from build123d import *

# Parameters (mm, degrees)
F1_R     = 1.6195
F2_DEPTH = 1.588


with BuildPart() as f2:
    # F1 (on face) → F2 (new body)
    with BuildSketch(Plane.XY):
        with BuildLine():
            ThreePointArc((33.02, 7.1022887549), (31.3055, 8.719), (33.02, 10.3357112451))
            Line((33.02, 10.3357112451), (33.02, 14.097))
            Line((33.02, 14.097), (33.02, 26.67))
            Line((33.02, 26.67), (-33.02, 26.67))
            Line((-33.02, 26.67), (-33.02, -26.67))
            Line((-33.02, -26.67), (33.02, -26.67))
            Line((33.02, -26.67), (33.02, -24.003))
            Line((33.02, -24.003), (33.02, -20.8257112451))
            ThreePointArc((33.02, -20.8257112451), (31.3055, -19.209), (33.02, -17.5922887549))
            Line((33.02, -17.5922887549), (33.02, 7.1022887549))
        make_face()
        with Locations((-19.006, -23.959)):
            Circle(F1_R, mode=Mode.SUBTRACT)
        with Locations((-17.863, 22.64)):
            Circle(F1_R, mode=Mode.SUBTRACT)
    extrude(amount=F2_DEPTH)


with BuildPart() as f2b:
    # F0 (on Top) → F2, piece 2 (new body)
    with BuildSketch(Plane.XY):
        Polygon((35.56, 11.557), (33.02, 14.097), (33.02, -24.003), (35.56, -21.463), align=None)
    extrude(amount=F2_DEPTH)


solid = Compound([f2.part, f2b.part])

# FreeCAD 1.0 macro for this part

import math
import FreeCAD as App
import Part
import Sketcher
from FreeCAD import Vector
Q = App.Units.Quantity

doc = App.newDocument("Part")
params = doc.addObject("Spreadsheet::Sheet", "Params")
for row, (alias, value) in enumerate([
    ("sketch1_width", "2.6 in"),
    ("sketch1_height", "2.1 in"),
    ("pad1_length", "1.588 mm"),
    ("sketch2_height", "1.5 in"),
    ("sketch2_height2", "1.3 in"),
    ("pad2_length", "1.588 mm"),
], start=1):
    params.set(f"A{row}", alias)
    params.set(f"B{row}", "=" + value)
    params.setAlias(f"B{row}", alias)

body = doc.addObject("PartDesign::Body", "Body")

# Sketch on XY plane
sketch1 = doc.addObject("Sketcher::SketchObject", "Sketch")
body.addObject(sketch1)
sketch1.AttachmentSupport = (doc.XY_Plane, [""])
sketch1.MapMode = "FlatFace"
sketch1.addGeometry(Part.ArcOfCircle(Part.Circle(Vector(32.9, 8.7, 0), Vector(0, 0, 1), 1.6), math.radians(87), math.radians(273)), False)
sketch1.addGeometry(Part.LineSegment(Vector(33, 10.3, 0), Vector(33, 26.7, 0)), False)
sketch1.addGeometry(Part.LineSegment(Vector(33, 26.7, 0), Vector(-33, 26.7, 0)), False)
sketch1.addGeometry(Part.LineSegment(Vector(-33, 26.7, 0), Vector(-33, -26.7, 0)), False)
sketch1.addGeometry(Part.LineSegment(Vector(-33, -26.7, 0), Vector(33, -26.7, 0)), False)
sketch1.addGeometry(Part.LineSegment(Vector(33, -26.7, 0), Vector(33, -20.8, 0)), False)
sketch1.addGeometry(Part.ArcOfCircle(Part.Circle(Vector(32.9, -19.2, 0), Vector(0, 0, 1), 1.6), math.radians(87), math.radians(273)), False)
sketch1.addGeometry(Part.LineSegment(Vector(33, -17.6, 0), Vector(33, 7.1, 0)), False)
sketch1.addGeometry(Part.Circle(Vector(-19, -24, 0), Vector(0, 0, 1), 1.6), False)
sketch1.addGeometry(Part.Circle(Vector(-17.9, 22.6, 0), Vector(0, 0, 1), 1.6), False)
sketch1.addConstraint(Sketcher.Constraint("Coincident", 0, 1, 1, 1))
sketch1.addConstraint(Sketcher.Constraint("Coincident", 1, 2, 2, 1))
sketch1.addConstraint(Sketcher.Constraint("Coincident", 2, 2, 3, 1))
sketch1.addConstraint(Sketcher.Constraint("Coincident", 3, 2, 4, 1))
sketch1.addConstraint(Sketcher.Constraint("Coincident", 4, 2, 5, 1))
sketch1.addConstraint(Sketcher.Constraint("Coincident", 5, 2, 6, 2))
sketch1.addConstraint(Sketcher.Constraint("Coincident", 6, 1, 7, 1))
sketch1.addConstraint(Sketcher.Constraint("Coincident", 7, 2, 0, 2))
sketch1.addConstraint(Sketcher.Constraint("Vertical", 1))
sketch1.addConstraint(Sketcher.Constraint("Horizontal", 2))
sketch1.addConstraint(Sketcher.Constraint("Vertical", 3))
sketch1.addConstraint(Sketcher.Constraint("Horizontal", 4))
sketch1.addConstraint(Sketcher.Constraint("Vertical", 5))
sketch1.addConstraint(Sketcher.Constraint("Vertical", 7))
sketch1.addConstraint(Sketcher.Constraint("Equal", 0, 6))
sketch1.addConstraint(Sketcher.Constraint("Equal", 6, 8))
sketch1.addConstraint(Sketcher.Constraint("Equal", 8, 9))
sketch1.addConstraint(Sketcher.Constraint("Symmetric", 1, 2, 3, 2, -1, 1))
sketch1.addConstraint(Sketcher.Constraint("Vertical", 0, 3, 6, 3))
sketch1.addConstraint(Sketcher.Constraint("Vertical", 1, 2, 4, 2))
sketch1.addConstraint(Sketcher.Constraint("Vertical", 5, 2, 6, 1))
sketch1.addConstraint(Sketcher.Constraint("DistanceX", 2, 2, 2, 1, Q("2.6 in")))
sketch1.addConstraint(Sketcher.Constraint("DistanceY", 3, 2, 3, 1, Q("2.1 in")))
sketch1.addConstraint(Sketcher.Constraint("Diameter", 8, Q("3.239 mm")))
sketch1.addConstraint(Sketcher.Constraint("DistanceX", 8, 3, 9, 3, Q("0.045 in")))
sketch1.addConstraint(Sketcher.Constraint("DistanceY", 5, 2, 6, 1, Q("0.1273001 in")))
sketch1.addConstraint(Sketcher.Constraint("DistanceY", 1, 1, 1, 2, Q("16.334289 mm")))
sketch1.addConstraint(Sketcher.Constraint("DistanceY", 5, 1, 5, 2, Q("5.844289 mm")))
sketch1.addConstraint(Sketcher.Constraint("DistanceX", 8, 3, -1, 1, Q("19.006 mm")))
sketch1.addConstraint(Sketcher.Constraint("DistanceY", 8, 3, -1, 1, Q("23.959 mm")))
sketch1.addConstraint(Sketcher.Constraint("DistanceY", -1, 1, 9, 3, Q("22.64 mm")))
sketch1.setExpression("Constraints[21]", "Params.sketch1_width")
sketch1.setExpression("Constraints[22]", "Params.sketch1_height")
pad1 = doc.addObject("PartDesign::Pad", "Pad")
body.addObject(pad1)
pad1.Profile = sketch1
pad1.setExpression("Length", "Params.pad1_length")
body2 = doc.addObject("PartDesign::Body", "Body001")

# Sketch on XY plane
sketch2 = doc.addObject("Sketcher::SketchObject", "Sketch001")
body2.addObject(sketch2)
sketch2.AttachmentSupport = (doc.getObject("XY_Plane001"), [""])
sketch2.MapMode = "FlatFace"
sketch2.addGeometry(Part.LineSegment(Vector(35.6, 11.6, 0), Vector(33, 14.1, 0)), False)
sketch2.addGeometry(Part.LineSegment(Vector(33, 14.1, 0), Vector(33, -24, 0)), False)
sketch2.addGeometry(Part.LineSegment(Vector(33, -24, 0), Vector(35.6, -21.5, 0)), False)
sketch2.addGeometry(Part.LineSegment(Vector(35.6, -21.5, 0), Vector(35.6, 11.6, 0)), False)
sketch2.addConstraint(Sketcher.Constraint("Coincident", 0, 2, 1, 1))
sketch2.addConstraint(Sketcher.Constraint("Coincident", 1, 2, 2, 1))
sketch2.addConstraint(Sketcher.Constraint("Coincident", 2, 2, 3, 1))
sketch2.addConstraint(Sketcher.Constraint("Coincident", 3, 2, 0, 1))
sketch2.addConstraint(Sketcher.Constraint("Vertical", 1))
sketch2.addConstraint(Sketcher.Constraint("Vertical", 3))
sketch2.addConstraint(Sketcher.Constraint("Perpendicular", 0, 2))
sketch2.addConstraint(Sketcher.Constraint("Equal", 0, 2))
sketch2.addConstraint(Sketcher.Constraint("DistanceY", 1, 2, 1, 1, Q("1.5 in")))
sketch2.addConstraint(Sketcher.Constraint("DistanceY", 3, 1, 3, 2, Q("1.3 in")))
sketch2.addConstraint(Sketcher.Constraint("DistanceX", -1, 1, 0, 2, Q("1.3 in")))
sketch2.addConstraint(Sketcher.Constraint("DistanceY", -1, 1, 0, 2, Q("0.555 in")))
sketch2.setExpression("Constraints[8]", "Params.sketch2_height")
sketch2.setExpression("Constraints[9]", "Params.sketch2_height2")
pad2 = doc.addObject("PartDesign::Pad", "Pad001")
body2.addObject(pad2)
pad2.Profile = sketch2
pad2.setExpression("Length", "Params.pad2_length")

doc.recompute()
